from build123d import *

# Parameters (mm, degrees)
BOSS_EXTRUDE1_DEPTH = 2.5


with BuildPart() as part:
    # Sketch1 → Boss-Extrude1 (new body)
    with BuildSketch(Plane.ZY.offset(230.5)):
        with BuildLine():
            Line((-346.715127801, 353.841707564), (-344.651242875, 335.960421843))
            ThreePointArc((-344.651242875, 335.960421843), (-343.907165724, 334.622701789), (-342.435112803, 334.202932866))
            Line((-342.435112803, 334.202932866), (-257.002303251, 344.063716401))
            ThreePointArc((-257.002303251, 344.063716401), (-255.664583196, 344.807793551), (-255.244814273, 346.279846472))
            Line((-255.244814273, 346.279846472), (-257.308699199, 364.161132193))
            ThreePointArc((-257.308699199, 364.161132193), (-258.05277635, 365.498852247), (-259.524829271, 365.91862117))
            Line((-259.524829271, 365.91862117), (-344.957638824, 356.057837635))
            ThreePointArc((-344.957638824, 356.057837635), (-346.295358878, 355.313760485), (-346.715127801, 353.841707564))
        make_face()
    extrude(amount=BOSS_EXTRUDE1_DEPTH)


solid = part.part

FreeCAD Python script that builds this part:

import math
import FreeCAD as App
import Part
import Sketcher

V = App.Vector

doc = App.newDocument("Part")
body = doc.addObject("PartDesign::Body", "Body")

sketch1 = doc.addObject("Sketcher::SketchObject", "Sketch")
body.addObject(sketch1)
sketch1.AttachmentSupport = (doc.YZ_Plane, [""])
sketch1.MapMode = "FlatFace"
sketch1.AttachmentOffset = App.Placement(V(0, 0, -230.5), App.Rotation())
sketch1.addGeometry(Part.LineSegment(V(353.841708, -346.715128, 0), V(335.960422, -344.651243, 0)), False)
sketch1.addGeometry(Part.ArcOfCircle(Part.Circle(V(336.189742, -342.664433, 0), V(0, 0, 1), 2), math.radians(173.415969), math.radians(263.415969)), False)
sketch1.addGeometry(Part.LineSegment(V(334.202933, -342.435113, 0), V(344.063716, -257.002303, 0)), False)
sketch1.addGeometry(Part.ArcOfCircle(Part.Circle(V(346.050526, -257.231624, 0), V(0, 0, 1), 2), math.radians(83.415969), math.radians(173.41597)), False)
sketch1.addGeometry(Part.LineSegment(V(346.279846, -255.244814, 0), V(364.161132, -257.308699, 0)), False)
sketch1.addGeometry(Part.ArcOfCircle(Part.Circle(V(363.931812, -259.295509, 0), V(0, 0, 1), 2), math.radians(-6.584031), math.radians(83.415969)), False)
sketch1.addGeometry(Part.LineSegment(V(365.918621, -259.524829, 0), V(356.057838, -344.957639, 0)), False)
sketch1.addGeometry(Part.ArcOfCircle(Part.Circle(V(354.071028, -344.728318, 0), V(0, 0, 1), 2), math.radians(-96.584031), math.radians(-6.584031)), False)
sketch1.addConstraint(Sketcher.Constraint("Tangent", 0, 2, 1, 2))
sketch1.addConstraint(Sketcher.Constraint("Tangent", 1, 1, 2, 1))
sketch1.addConstraint(Sketcher.Constraint("Tangent", 2, 2, 3, 2))
sketch1.addConstraint(Sketcher.Constraint("Tangent", 3, 1, 4, 1))
sketch1.addConstraint(Sketcher.Constraint("Tangent", 4, 2, 5, 2))
sketch1.addConstraint(Sketcher.Constraint("Tangent", 5, 1, 6, 1))
sketch1.addConstraint(Sketcher.Constraint("Tangent", 6, 2, 7, 2))
sketch1.addConstraint(Sketcher.Constraint("Tangent", 7, 1, 0, 1))
sketch1.addConstraint(Sketcher.Constraint("Equal", 1, 3))
sketch1.addConstraint(Sketcher.Constraint("Equal", 3, 5))
sketch1.addConstraint(Sketcher.Constraint("Equal", 5, 7))
sketch1.addConstraint(Sketcher.Constraint("Perpendicular", 0, 2))
sketch1.addConstraint(Sketcher.Constraint("Perpendicular", 2, 4))
sketch1.addConstraint(Sketcher.Constraint("Perpendicular", 4, 6))
sketch1.addConstraint(Sketcher.Constraint("Radius", 1, 2.0))
sketch1.addConstraint(Sketcher.Constraint("Distance", 0, 18.0))
sketch1.addConstraint(Sketcher.Constraint("Distance", 2, 86.0))
sketch1.addConstraint(Sketcher.Constraint("DistanceY", 4, 2, -1, 1, 257.308699))
sketch1.addConstraint(Sketcher.Constraint("DistanceY", 1, 1, 3, 1, 87.190299))
sketch1.addConstraint(Sketcher.Constraint("DistanceX", -1, 1, 5, 3, 363.931812))
pad1 = doc.addObject("PartDesign::Pad", "Pad")
body.addObject(pad1)
pad1.Profile = sketch1
pad1.Length = 2.5
pad1.Reversed = True

doc.recompute()
